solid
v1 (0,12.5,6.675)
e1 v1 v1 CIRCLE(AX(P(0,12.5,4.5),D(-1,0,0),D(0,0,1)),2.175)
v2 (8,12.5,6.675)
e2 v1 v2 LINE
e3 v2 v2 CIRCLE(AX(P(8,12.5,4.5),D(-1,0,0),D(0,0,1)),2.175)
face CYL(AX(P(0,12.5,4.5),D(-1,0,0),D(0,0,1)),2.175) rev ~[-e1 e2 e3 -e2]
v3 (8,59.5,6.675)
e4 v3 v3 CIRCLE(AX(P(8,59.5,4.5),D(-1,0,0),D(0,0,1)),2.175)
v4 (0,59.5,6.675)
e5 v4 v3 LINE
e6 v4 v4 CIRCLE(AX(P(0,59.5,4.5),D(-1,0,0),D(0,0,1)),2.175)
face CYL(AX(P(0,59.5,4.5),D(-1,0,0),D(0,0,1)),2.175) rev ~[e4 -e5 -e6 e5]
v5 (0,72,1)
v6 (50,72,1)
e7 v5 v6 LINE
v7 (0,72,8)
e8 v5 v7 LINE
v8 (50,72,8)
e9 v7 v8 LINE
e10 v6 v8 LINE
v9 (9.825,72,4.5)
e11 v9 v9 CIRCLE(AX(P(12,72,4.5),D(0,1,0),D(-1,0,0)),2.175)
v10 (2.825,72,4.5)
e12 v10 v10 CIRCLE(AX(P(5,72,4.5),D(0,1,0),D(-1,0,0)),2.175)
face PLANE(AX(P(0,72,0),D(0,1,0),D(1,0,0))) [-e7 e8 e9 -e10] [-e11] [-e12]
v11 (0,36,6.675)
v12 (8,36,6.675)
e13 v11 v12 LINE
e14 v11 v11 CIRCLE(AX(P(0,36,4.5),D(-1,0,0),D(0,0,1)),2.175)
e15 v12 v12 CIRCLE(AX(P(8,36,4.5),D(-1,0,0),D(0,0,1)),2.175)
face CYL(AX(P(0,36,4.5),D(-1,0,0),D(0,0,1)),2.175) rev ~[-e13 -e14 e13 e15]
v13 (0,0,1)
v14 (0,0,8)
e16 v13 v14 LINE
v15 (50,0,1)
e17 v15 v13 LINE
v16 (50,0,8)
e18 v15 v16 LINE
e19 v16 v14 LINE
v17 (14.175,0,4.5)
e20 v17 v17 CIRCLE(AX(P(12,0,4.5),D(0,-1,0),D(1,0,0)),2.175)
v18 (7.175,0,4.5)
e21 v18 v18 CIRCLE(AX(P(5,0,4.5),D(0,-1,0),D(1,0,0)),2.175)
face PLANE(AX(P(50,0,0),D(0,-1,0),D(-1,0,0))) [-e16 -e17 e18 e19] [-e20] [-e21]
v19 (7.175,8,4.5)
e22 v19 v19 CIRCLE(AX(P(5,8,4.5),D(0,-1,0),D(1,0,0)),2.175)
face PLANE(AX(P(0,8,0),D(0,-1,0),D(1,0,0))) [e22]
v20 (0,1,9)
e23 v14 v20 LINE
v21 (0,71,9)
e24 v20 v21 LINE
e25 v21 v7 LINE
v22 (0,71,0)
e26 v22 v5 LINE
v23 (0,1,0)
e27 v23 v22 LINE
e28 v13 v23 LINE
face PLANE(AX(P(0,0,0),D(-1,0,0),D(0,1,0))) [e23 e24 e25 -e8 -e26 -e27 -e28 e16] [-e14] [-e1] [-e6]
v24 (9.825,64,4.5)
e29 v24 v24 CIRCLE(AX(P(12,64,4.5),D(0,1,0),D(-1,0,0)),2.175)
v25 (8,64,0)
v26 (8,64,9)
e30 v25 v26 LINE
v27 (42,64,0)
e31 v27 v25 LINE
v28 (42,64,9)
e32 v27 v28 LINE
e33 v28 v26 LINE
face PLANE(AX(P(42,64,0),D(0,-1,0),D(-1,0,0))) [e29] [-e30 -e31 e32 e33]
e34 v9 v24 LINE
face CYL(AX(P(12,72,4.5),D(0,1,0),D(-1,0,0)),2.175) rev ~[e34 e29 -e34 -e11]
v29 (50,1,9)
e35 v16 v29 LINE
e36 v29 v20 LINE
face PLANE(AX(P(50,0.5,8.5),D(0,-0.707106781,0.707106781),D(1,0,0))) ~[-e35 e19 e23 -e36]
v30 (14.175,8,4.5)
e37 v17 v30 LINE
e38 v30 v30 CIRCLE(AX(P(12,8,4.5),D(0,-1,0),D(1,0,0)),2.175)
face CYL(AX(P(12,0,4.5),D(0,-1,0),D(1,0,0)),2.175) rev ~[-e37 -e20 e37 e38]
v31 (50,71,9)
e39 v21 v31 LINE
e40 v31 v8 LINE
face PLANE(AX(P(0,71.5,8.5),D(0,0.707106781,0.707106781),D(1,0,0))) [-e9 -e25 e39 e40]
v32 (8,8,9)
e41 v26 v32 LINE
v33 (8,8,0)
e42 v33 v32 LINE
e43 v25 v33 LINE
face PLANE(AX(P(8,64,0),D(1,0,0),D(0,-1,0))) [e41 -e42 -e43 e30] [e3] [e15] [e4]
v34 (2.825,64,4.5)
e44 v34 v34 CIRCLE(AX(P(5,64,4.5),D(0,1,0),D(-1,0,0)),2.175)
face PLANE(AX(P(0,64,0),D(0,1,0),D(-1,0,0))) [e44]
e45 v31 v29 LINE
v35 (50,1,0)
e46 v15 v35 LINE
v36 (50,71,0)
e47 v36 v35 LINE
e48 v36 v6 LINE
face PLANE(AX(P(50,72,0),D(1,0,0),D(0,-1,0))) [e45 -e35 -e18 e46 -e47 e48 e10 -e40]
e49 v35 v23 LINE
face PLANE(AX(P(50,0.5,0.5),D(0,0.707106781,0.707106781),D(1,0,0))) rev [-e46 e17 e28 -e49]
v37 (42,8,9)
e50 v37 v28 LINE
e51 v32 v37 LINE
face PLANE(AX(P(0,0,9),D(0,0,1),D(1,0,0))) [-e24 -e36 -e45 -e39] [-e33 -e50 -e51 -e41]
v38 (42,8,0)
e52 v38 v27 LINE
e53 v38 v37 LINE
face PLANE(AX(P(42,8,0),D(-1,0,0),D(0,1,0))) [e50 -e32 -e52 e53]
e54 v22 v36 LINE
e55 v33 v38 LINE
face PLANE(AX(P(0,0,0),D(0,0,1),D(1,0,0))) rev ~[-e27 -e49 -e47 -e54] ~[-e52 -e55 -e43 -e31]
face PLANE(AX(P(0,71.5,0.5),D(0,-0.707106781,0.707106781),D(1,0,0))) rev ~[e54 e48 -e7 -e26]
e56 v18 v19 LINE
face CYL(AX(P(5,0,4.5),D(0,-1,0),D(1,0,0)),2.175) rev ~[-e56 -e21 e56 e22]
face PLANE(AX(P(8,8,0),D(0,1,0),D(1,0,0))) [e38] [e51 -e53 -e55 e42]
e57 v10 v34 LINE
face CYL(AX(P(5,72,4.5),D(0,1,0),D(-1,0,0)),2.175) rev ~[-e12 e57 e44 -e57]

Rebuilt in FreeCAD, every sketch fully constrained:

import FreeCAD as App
import Part
import Sketcher
from FreeCAD import Vector


def edges_at(feature, points):
    """Names of the edges that pass closest to the given points."""
    edges = feature.Shape.Edges
    near = lambda p: min(range(len(edges)), key=lambda i: edges[i].distToShape(Part.Vertex(*p))[0])
    return sorted({f"Edge{near(p) + 1}" for p in points})

doc = App.newDocument("Part")
body = doc.addObject("PartDesign::Body", "Body")

sketch1 = body.newObject("Sketcher::SketchObject", "Sketch")
sketch1.AttachmentSupport = (doc.getObject("XY_Plane"), [""])
sketch1.MapMode = "FlatFace"
sketch1.addGeometry(Part.LineSegment(Vector(0, 0, 0), Vector(50, 0, 0)), False)
sketch1.addGeometry(Part.LineSegment(Vector(50, 0, 0), Vector(50, 72, 0)), False)
sketch1.addGeometry(Part.LineSegment(Vector(50, 72, 0), Vector(0, 72, 0)), False)
sketch1.addGeometry(Part.LineSegment(Vector(0, 72, 0), Vector(0, 0, 0)), False)
sketch1.addGeometry(Part.LineSegment(Vector(8, 64, 0), Vector(42, 64, 0)), False)
sketch1.addGeometry(Part.LineSegment(Vector(42, 64, 0), Vector(42, 8, 0)), False)
sketch1.addGeometry(Part.LineSegment(Vector(42, 8, 0), Vector(8, 8, 0)), False)
sketch1.addGeometry(Part.LineSegment(Vector(8, 8, 0), Vector(8, 64, 0)), False)
sketch1.addConstraint(Sketcher.Constraint("Coincident", 0, 2, 1, 1))
sketch1.addConstraint(Sketcher.Constraint("Coincident", 1, 2, 2, 1))
sketch1.addConstraint(Sketcher.Constraint("Coincident", 2, 2, 3, 1))
sketch1.addConstraint(Sketcher.Constraint("Coincident", 3, 2, 0, 1))
sketch1.addConstraint(Sketcher.Constraint("Coincident", 4, 2, 5, 1))
sketch1.addConstraint(Sketcher.Constraint("Coincident", 5, 2, 6, 1))
sketch1.addConstraint(Sketcher.Constraint("Coincident", 6, 2, 7, 1))
sketch1.addConstraint(Sketcher.Constraint("Coincident", 7, 2, 4, 1))
sketch1.addConstraint(Sketcher.Constraint("Horizontal", 0))
sketch1.addConstraint(Sketcher.Constraint("Vertical", 1))
sketch1.addConstraint(Sketcher.Constraint("Horizontal", 2))
sketch1.addConstraint(Sketcher.Constraint("Vertical", 3))
sketch1.addConstraint(Sketcher.Constraint("Horizontal", 4))
sketch1.addConstraint(Sketcher.Constraint("Vertical", 5))
sketch1.addConstraint(Sketcher.Constraint("Horizontal", 6))
sketch1.addConstraint(Sketcher.Constraint("Vertical", 7))
sketch1.addConstraint(Sketcher.Constraint("Coincident", 3, 2, -1, 1))
sketch1.addConstraint(Sketcher.Constraint("DistanceX", 0, 1, 0, 2, 50.0))
sketch1.addConstraint(Sketcher.Constraint("DistanceY", 1, 1, 1, 2, 72.0))
sketch1.addConstraint(Sketcher.Constraint("DistanceY", -1, 1, 5, 2, 8.0))
sketch1.addConstraint(Sketcher.Constraint("DistanceX", -1, 1, 6, 2, 8.0))
sketch1.addConstraint(Sketcher.Constraint("DistanceX", 4, 2, 1, 2, 8.0))
sketch1.addConstraint(Sketcher.Constraint("DistanceY", 4, 2, 1, 2, 8.0))
pad1 = body.newObject("PartDesign::Pad", "Pad")
pad1.Profile = sketch1
pad1.Length = 9

sketch2 = body.newObject("Sketcher::SketchObject", "Sketch001")
sketch2.AttachmentSupport = (doc.getObject("XZ_Plane"), [""])
sketch2.MapMode = "FlatFace"
sketch2.addGeometry(Part.Circle(Vector(5, 4.5, 0), Vector(0, 0, 1), 2.2), False)
sketch2.addGeometry(Part.Circle(Vector(12, 4.5, 0), Vector(0, 0, 1), 2.2), False)
sketch2.addConstraint(Sketcher.Constraint("Equal", 0, 1))
sketch2.addConstraint(Sketcher.Constraint("Horizontal", 0, 3, 1, 3))
sketch2.addConstraint(Sketcher.Constraint("Diameter", 0, 4.35))
sketch2.addConstraint(Sketcher.Constraint("DistanceX", -1, 1, 0, 3, 5.0))
sketch2.addConstraint(Sketcher.Constraint("DistanceX", 0, 3, 1, 3, 7.0))
sketch2.addConstraint(Sketcher.Constraint("DistanceY", -1, 1, 0, 3, 4.5))
pocket1 = body.newObject("PartDesign::Pocket", "Pocket")
pocket1.Profile = sketch2
pocket1.Length = 8

sketch3 = body.newObject("Sketcher::SketchObject", "Sketch002")
sketch3.AttachmentSupport = (doc.getObject("XZ_Plane"), [""])
sketch3.MapMode = "FlatFace"
sketch3.AttachmentOffset = App.Placement(Vector(0, 0, -72), App.Rotation())
sketch3.addGeometry(Part.Circle(Vector(12, 4.5, 0), Vector(0, 0, 1), 2.2), False)
sketch3.addGeometry(Part.Circle(Vector(5, 4.5, 0), Vector(0, 0, 1), 2.2), False)
sketch3.addConstraint(Sketcher.Constraint("Equal", 0, 1))
sketch3.addConstraint(Sketcher.Constraint("Horizontal", 0, 3, 1, 3))
sketch3.addConstraint(Sketcher.Constraint("Diameter", 0, 4.35))
sketch3.addConstraint(Sketcher.Constraint("DistanceX", -1, 1, 1, 3, 5.0))
sketch3.addConstraint(Sketcher.Constraint("DistanceX", 1, 3, 0, 3, 7.0))
sketch3.addConstraint(Sketcher.Constraint("DistanceY", -1, 1, 0, 3, 4.5))
pocket2 = body.newObject("PartDesign::Pocket", "Pocket001")
pocket2.Profile = sketch3
pocket2.Length = 8
pocket2.Reversed = True

sketch4 = body.newObject("Sketcher::SketchObject", "Sketch003")
sketch4.AttachmentSupport = (doc.getObject("YZ_Plane"), [""])
sketch4.MapMode = "FlatFace"
sketch4.addGeometry(Part.Circle(Vector(12.5, 4.5, 0), Vector(0, 0, 1), 2.2), False)
sketch4.addGeometry(Part.Circle(Vector(59.5, 4.5, 0), Vector(0, 0, 1), 2.2), False)
sketch4.addGeometry(Part.Circle(Vector(36, 4.5, 0), Vector(0, 0, 1), 2.2), False)
sketch4.addConstraint(Sketcher.Constraint("Equal", 0, 1))
sketch4.addConstraint(Sketcher.Constraint("Equal", 1, 2))
sketch4.addConstraint(Sketcher.Constraint("Horizontal", 0, 3, 1, 3))
sketch4.addConstraint(Sketcher.Constraint("Horizontal", 1, 3, 2, 3))
sketch4.addConstraint(Sketcher.Constraint("Diameter", 0, 4.35))
sketch4.addConstraint(Sketcher.Constraint("DistanceX", -1, 1, 0, 3, 12.5))
sketch4.addConstraint(Sketcher.Constraint("DistanceY", -1, 1, 0, 3, 4.5))
sketch4.addConstraint(Sketcher.Constraint("DistanceX", 0, 3, 2, 3, 23.5))
sketch4.addConstraint(Sketcher.Constraint("DistanceX", 2, 3, 1, 3, 23.5))
pocket3 = body.newObject("PartDesign::Pocket", "Pocket002")
pocket3.Profile = sketch4
pocket3.Length = 8
pocket3.Reversed = True
doc.recompute()

chamfer = body.newObject("PartDesign::Chamfer", "Chamfer")
chamfer.Base = (pocket3, edges_at(pocket3, [
    (25, 0, 9),
    (25, 72, 9),
    (25, 72, 0),
    (25, 0, 0),
]))
chamfer.Size = 1

doc.recompute()
